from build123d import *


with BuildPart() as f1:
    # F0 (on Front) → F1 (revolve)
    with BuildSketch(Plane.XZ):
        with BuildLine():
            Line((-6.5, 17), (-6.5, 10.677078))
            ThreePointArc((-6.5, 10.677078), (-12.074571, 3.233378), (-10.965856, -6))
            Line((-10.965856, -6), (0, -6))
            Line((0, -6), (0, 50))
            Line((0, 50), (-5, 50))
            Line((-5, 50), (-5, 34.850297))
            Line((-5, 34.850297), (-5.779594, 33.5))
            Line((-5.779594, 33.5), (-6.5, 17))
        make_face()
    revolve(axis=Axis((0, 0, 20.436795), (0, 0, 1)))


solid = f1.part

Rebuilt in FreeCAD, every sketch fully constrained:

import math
import FreeCAD as App
import Part
import Sketcher
from FreeCAD import Vector
Q = App.Units.Quantity

doc = App.newDocument("Part")
params = doc.addObject("Spreadsheet::Sheet", "Params")
for row, (alias, value) in enumerate([
    ("sketch1_radius", "12.5 mm"),
    ("sketch1_width", "5 mm"),
    ("sketch1_height", "56 mm"),
    ("revolution_angle", "360 deg"),
], start=1):
    params.set(f"A{row}", alias)
    params.set(f"B{row}", "=" + value)
    params.setAlias(f"B{row}", alias)

body = doc.addObject("PartDesign::Body", "Body")

# Sketch on XZ plane
sketch1 = body.newObject("Sketcher::SketchObject", "Sketch")
sketch1.AttachmentSupport = (doc.getObject("XZ_Plane"), [""])
sketch1.MapMode = "FlatFace"
sketch1.addGeometry([
    Part.LineSegment(Vector(-6.5, 17, 0), Vector(-6.5, 10.7, 0)),  # 0
    Part.ArcOfCircle(Part.Circle(Vector(0, 0, 0), Vector(0, 0, 1), 12.5), math.radians(121), math.radians(209)),  # 1
    Part.LineSegment(Vector(-11, -6, 0), Vector(0, -6, 0)),  # 2
    Part.LineSegment(Vector(0, -6, 0), Vector(0, 50, 0)),  # 3
    Part.LineSegment(Vector(0, 50, 0), Vector(-5, 50, 0)),  # 4
    Part.LineSegment(Vector(-5, 50, 0), Vector(-5, 34.9, 0)),  # 5
    Part.LineSegment(Vector(-5, 34.9, 0), Vector(-5.8, 33.5, 0)),  # 6
    Part.LineSegment(Vector(-5.8, 33.5, 0), Vector(-6.5, 17, 0)),  # 7
], False)
sketch1.addConstraint([
    Sketcher.Constraint("Coincident", 0, 2, 1, 1),
    Sketcher.Constraint("Coincident", 1, 2, 2, 1),
    Sketcher.Constraint("Coincident", 2, 2, 3, 1),
    Sketcher.Constraint("Coincident", 3, 2, 4, 1),
    Sketcher.Constraint("Coincident", 4, 2, 5, 1),
    Sketcher.Constraint("Coincident", 5, 2, 6, 1),
    Sketcher.Constraint("Coincident", 6, 2, 7, 1),
    Sketcher.Constraint("Coincident", 7, 2, 0, 1),
    Sketcher.Constraint("Vertical", 0),
    Sketcher.Constraint("Horizontal", 2),
    Sketcher.Constraint("Vertical", 3),
    Sketcher.Constraint("Horizontal", 4),
    Sketcher.Constraint("Vertical", 5),
    Sketcher.Constraint("Coincident", 1, 3, -1, 1),
    Sketcher.Constraint("PointOnObject", 2, 2, -2),
    Sketcher.Constraint("Radius", 1, 12.5),
    Sketcher.Constraint("DistanceX", 4, 2, 4, 1, 5.0),
    Sketcher.Constraint("DistanceY", 3, 1, 3, 2, 56.0),
    Sketcher.Constraint("Angle", 6, Q("-119.999989 deg")),
    Sketcher.Constraint("DistanceY", 1, 2, -1, 1, 6.0),
    Sketcher.Constraint("DistanceY", -1, 1, 7, 2, 17.0),
    Sketcher.Constraint("Angle", 7, Q("-92.500002 deg")),
    Sketcher.Constraint("DistanceX", 0, 2, -1, 1, 6.5),
    Sketcher.Constraint("DistanceY", -1, 1, 6, 2, 33.5),
])
sketch1.setExpression("Constraints[15]", "Params.sketch1_radius")
sketch1.setExpression("Constraints[16]", "Params.sketch1_width")
sketch1.setExpression("Constraints[17]", "Params.sketch1_height")
revolution = body.newObject("PartDesign::Revolution", "Revolution")
revolution.Profile = sketch1
revolution.ReferenceAxis = (sketch1, ["V_Axis"])
revolution.setExpression("Angle", "Params.revolution_angle")

doc.recompute()
